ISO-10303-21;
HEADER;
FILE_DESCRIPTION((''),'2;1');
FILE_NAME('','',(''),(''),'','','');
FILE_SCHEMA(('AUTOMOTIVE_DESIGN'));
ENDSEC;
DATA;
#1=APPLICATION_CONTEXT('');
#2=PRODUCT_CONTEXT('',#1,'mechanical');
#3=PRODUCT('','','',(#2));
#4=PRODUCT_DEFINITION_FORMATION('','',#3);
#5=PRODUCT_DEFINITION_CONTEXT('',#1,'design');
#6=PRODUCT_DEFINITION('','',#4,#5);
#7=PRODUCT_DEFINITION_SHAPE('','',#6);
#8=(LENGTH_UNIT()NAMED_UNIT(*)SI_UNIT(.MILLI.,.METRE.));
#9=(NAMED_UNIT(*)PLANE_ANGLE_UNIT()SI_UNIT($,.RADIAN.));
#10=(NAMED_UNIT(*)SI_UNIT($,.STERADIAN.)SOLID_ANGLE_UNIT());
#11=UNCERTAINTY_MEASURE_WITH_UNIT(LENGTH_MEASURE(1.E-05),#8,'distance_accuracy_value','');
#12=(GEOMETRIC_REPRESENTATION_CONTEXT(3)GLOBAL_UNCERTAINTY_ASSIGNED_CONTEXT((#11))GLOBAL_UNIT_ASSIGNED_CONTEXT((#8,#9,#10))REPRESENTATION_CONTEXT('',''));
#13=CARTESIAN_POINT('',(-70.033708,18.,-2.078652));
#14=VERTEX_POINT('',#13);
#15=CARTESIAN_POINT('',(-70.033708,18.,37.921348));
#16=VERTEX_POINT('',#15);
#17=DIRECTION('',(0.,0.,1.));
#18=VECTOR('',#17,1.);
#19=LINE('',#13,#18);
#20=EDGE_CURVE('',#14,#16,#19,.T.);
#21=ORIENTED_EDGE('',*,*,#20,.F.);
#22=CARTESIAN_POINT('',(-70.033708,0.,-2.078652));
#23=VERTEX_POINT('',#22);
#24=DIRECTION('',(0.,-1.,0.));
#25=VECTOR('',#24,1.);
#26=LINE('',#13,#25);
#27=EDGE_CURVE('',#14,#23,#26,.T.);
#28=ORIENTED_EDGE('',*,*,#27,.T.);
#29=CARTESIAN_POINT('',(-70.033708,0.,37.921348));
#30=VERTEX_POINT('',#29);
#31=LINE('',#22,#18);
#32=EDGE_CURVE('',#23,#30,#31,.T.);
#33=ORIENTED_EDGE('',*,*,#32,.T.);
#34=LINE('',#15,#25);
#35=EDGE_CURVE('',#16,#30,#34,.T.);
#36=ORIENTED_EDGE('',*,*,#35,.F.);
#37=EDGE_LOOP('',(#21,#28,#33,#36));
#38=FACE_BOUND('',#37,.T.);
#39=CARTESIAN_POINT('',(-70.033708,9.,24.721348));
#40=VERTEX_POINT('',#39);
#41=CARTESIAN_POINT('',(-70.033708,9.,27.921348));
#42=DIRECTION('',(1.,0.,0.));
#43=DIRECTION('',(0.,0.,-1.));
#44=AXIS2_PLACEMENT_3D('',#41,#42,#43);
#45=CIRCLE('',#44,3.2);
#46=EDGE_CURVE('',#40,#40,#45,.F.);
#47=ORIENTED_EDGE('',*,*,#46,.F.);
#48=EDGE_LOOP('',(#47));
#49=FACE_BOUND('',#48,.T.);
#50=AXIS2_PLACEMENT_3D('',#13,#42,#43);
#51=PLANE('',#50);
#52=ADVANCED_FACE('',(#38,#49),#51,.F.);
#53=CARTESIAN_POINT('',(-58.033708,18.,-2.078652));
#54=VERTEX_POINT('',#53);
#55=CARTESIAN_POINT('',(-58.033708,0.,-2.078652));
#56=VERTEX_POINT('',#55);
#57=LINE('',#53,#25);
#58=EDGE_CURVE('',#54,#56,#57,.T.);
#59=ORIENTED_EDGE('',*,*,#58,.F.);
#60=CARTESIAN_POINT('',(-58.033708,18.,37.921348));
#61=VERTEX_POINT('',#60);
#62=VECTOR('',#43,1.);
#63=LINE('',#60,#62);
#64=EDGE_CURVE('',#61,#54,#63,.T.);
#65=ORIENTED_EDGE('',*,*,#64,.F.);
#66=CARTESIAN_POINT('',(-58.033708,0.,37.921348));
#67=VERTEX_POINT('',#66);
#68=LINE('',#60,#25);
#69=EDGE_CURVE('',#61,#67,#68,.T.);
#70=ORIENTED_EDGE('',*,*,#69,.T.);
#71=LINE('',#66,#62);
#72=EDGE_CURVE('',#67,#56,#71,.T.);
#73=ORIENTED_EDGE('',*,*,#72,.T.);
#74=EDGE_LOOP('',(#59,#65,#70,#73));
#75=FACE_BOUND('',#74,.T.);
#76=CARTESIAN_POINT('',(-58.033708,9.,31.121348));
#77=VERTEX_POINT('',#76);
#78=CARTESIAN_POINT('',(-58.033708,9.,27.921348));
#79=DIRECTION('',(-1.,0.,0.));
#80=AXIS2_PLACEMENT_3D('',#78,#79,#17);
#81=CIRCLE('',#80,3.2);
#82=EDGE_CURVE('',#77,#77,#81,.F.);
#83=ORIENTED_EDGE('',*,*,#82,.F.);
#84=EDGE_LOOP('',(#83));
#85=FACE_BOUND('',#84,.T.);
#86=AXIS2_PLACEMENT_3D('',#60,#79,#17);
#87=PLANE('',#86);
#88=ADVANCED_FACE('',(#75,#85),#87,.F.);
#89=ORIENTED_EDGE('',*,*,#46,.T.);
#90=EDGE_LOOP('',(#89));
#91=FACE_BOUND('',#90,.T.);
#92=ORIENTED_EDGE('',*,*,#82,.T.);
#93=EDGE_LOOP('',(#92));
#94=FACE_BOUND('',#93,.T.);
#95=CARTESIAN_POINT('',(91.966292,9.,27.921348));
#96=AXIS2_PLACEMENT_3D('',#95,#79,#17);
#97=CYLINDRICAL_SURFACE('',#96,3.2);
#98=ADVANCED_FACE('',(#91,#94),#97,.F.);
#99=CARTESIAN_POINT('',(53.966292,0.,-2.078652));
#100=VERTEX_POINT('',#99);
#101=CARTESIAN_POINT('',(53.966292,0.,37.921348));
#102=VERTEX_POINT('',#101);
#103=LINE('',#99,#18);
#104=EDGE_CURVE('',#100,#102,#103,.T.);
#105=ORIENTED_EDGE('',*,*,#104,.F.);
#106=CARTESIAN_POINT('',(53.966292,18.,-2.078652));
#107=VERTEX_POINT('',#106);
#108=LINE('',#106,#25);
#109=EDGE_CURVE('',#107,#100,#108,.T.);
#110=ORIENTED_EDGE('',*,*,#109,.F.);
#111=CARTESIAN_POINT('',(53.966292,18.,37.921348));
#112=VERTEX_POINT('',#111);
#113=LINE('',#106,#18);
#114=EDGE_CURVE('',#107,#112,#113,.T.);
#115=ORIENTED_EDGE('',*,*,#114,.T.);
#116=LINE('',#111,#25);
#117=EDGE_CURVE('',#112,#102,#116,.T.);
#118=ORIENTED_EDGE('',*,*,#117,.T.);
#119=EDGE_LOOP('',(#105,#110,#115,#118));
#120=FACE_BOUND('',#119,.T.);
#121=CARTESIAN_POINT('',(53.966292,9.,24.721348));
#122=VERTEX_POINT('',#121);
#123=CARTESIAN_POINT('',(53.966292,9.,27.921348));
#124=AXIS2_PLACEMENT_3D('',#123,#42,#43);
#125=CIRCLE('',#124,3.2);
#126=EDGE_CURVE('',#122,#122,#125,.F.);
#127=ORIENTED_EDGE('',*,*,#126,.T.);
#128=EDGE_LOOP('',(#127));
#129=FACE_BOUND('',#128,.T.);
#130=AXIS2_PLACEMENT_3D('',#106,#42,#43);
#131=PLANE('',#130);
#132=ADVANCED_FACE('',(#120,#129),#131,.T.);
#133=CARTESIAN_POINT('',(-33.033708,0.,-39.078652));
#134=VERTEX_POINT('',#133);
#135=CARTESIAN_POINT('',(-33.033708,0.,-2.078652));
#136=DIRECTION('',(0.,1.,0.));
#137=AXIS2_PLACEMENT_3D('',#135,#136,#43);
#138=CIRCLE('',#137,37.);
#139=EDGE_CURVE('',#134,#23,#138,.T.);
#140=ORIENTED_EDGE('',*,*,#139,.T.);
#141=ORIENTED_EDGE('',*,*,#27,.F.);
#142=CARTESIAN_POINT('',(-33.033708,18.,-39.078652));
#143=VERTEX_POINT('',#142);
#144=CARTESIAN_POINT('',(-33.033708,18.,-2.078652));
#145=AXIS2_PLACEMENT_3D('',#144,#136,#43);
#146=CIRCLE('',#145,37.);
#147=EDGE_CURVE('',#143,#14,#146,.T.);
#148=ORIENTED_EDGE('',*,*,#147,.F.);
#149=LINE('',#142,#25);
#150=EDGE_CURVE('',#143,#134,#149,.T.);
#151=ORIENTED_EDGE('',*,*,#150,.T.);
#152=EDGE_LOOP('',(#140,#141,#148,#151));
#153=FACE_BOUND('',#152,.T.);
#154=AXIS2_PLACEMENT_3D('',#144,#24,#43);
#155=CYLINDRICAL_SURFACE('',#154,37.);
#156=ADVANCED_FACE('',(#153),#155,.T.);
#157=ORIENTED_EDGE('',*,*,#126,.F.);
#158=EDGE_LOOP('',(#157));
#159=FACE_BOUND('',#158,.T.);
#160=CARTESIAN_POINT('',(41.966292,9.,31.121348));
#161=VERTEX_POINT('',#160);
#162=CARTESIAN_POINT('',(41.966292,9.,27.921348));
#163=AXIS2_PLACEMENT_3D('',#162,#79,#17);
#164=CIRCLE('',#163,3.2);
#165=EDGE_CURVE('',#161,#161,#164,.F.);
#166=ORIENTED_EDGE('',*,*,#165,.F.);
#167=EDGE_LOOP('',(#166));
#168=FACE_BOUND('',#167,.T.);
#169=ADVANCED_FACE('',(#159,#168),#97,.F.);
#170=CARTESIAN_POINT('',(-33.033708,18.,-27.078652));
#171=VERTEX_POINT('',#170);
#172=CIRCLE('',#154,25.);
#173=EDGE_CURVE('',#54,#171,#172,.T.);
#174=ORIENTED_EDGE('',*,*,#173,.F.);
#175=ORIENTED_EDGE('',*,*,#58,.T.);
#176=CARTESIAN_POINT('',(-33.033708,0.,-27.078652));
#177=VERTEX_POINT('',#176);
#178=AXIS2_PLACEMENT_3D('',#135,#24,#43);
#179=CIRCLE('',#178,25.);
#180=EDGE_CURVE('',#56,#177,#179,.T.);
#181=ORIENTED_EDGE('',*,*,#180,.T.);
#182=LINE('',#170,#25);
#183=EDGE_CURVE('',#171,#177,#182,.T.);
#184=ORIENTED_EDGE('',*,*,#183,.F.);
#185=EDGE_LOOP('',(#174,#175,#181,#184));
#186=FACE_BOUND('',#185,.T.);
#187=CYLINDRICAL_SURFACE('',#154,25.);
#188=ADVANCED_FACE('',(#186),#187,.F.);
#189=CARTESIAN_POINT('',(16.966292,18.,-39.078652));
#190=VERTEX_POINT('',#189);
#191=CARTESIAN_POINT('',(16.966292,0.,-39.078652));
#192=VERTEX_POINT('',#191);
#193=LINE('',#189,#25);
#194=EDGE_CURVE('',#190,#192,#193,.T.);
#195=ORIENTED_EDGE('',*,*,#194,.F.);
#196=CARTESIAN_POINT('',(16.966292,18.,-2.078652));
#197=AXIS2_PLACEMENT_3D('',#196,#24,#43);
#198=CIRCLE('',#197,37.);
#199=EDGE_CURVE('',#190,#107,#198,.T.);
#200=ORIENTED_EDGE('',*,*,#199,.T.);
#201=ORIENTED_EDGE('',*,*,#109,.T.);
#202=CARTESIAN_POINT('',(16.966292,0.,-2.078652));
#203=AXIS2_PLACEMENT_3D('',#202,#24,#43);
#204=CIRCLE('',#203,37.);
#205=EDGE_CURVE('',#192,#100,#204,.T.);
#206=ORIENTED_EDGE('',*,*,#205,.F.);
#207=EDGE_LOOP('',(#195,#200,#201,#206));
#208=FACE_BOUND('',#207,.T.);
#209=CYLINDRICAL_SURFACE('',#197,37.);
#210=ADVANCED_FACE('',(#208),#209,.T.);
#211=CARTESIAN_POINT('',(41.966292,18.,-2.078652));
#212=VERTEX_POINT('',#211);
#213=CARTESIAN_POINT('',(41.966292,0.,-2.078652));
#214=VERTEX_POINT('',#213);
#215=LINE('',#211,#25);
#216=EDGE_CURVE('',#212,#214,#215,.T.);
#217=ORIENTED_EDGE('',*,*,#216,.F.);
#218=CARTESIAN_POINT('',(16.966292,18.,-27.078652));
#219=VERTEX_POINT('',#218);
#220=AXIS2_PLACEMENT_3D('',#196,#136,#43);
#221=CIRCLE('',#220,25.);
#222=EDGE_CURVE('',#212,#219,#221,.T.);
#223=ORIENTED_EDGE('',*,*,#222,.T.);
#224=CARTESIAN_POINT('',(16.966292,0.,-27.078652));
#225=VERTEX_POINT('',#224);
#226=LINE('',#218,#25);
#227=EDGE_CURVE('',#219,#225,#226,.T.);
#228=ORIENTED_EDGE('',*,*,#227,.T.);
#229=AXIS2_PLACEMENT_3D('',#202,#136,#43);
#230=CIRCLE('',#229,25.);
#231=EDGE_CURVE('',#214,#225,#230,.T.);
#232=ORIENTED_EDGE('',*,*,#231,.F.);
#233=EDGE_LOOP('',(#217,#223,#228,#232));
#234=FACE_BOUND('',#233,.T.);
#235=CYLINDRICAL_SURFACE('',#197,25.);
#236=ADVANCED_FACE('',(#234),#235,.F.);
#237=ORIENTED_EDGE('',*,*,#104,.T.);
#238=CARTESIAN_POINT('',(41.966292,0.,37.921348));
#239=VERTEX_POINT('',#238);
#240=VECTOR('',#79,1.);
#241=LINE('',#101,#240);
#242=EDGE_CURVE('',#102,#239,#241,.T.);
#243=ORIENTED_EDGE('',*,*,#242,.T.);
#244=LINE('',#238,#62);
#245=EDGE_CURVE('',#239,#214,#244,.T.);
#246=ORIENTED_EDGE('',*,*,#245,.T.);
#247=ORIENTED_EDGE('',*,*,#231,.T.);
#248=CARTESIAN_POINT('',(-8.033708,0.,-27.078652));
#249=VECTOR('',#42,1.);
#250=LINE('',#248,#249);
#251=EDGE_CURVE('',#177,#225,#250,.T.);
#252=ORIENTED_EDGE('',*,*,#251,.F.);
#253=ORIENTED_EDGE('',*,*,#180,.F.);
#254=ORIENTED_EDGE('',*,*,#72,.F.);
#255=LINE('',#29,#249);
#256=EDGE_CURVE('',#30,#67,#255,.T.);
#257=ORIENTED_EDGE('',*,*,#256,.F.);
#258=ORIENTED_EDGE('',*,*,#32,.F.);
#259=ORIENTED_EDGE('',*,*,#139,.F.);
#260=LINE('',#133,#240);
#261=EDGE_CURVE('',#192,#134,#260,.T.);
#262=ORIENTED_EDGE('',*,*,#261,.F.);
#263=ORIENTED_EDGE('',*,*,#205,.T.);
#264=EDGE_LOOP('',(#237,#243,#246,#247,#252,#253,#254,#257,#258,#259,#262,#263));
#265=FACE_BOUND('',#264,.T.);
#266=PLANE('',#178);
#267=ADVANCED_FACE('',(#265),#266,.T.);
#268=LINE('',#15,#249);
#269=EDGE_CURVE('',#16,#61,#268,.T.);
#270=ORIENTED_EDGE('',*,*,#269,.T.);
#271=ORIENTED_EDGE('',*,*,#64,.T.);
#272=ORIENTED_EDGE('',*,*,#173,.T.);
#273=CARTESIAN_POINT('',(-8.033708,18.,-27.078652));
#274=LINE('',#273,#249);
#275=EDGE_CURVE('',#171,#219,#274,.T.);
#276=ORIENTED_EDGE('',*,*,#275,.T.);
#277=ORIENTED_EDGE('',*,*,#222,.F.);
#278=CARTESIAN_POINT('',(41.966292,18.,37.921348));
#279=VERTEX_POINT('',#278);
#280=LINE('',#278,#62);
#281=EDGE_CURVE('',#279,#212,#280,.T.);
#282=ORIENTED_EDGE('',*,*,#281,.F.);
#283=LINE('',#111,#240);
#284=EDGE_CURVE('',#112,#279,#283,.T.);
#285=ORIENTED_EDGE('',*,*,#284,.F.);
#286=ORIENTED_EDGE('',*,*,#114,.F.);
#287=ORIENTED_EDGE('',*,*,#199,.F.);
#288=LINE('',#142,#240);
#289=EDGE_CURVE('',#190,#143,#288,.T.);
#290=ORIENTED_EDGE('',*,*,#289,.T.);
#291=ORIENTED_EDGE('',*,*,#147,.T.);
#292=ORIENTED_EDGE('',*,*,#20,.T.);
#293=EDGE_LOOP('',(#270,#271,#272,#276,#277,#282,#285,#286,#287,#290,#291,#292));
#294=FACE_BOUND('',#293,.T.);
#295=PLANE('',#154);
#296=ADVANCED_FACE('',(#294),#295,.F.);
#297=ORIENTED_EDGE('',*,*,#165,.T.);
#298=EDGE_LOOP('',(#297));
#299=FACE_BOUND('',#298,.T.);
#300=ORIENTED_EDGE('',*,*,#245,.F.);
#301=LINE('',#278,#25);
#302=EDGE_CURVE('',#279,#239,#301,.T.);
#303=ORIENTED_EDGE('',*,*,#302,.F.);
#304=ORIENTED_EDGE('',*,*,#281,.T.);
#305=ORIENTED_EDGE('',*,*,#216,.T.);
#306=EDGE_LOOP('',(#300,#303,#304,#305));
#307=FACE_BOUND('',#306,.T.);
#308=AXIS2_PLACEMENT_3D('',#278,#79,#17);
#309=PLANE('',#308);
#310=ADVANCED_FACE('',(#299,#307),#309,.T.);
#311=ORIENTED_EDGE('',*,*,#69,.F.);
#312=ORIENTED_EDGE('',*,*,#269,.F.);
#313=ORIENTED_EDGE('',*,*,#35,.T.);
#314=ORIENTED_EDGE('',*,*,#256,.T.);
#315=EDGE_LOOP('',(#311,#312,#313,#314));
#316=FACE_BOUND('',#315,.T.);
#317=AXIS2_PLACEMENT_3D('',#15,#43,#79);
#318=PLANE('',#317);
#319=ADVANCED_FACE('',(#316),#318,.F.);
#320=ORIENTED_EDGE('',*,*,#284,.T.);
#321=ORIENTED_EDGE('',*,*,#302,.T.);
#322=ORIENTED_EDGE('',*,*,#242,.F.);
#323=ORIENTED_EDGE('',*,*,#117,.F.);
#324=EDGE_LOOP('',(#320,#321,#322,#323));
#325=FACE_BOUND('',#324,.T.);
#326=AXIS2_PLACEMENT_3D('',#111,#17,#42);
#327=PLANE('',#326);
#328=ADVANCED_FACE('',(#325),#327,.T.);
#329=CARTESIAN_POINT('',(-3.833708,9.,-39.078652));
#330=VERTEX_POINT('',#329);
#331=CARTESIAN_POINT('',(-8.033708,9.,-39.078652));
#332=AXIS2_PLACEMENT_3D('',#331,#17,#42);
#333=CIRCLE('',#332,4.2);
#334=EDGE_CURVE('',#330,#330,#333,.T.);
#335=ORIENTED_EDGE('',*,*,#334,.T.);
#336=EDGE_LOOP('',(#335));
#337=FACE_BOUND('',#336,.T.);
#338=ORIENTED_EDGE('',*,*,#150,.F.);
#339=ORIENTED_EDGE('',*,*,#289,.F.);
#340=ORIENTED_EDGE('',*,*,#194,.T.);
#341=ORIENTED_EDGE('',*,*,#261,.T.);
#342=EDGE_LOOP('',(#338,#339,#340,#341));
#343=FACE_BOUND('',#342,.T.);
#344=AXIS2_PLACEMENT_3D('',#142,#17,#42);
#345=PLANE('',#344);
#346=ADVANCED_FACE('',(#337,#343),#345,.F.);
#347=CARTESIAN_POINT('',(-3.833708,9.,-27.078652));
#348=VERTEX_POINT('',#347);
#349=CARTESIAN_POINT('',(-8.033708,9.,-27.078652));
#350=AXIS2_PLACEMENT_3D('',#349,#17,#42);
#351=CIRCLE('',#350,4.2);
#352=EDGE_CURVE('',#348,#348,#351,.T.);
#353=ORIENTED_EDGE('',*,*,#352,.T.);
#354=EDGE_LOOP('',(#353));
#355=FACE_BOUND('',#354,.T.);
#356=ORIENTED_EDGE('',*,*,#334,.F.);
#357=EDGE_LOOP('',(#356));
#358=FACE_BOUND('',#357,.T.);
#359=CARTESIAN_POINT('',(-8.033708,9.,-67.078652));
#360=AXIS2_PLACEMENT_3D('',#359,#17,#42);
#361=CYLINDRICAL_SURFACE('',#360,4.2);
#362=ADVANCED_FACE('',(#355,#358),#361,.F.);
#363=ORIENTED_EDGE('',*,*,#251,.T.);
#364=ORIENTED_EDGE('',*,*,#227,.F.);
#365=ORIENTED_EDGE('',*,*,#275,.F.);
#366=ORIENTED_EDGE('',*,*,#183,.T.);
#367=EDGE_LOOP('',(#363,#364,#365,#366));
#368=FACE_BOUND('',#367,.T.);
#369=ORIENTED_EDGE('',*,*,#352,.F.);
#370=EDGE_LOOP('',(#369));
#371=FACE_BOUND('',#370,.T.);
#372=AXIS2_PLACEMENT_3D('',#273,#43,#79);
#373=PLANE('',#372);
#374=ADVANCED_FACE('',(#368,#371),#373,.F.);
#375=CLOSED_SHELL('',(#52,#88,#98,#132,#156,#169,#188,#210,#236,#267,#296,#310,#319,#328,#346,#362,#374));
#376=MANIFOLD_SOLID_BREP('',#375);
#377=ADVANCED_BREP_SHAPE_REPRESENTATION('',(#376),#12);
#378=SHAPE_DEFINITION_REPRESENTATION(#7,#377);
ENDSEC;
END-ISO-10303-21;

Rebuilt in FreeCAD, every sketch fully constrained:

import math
import FreeCAD as App
import Part
import Sketcher
from FreeCAD import Vector

doc = App.newDocument("Part")
params = doc.addObject("Spreadsheet::Sheet", "Params")
for row, (alias, value) in enumerate([
    ("sketch1_radius", "25 mm"),
    ("sketch1_radius2", "37 mm"),
    ("sketch1_width", "25 mm"),
    ("sketch1_height", "40 mm"),
    ("pad1_length", "18 mm"),
    ("sketch2_diameter", "6.4 mm"),
    ("sketch3_diameter", "8.4 mm"),
    ("pocket2_length", "40 mm"),
], start=1):
    params.set(f"A{row}", alias)
    params.set(f"B{row}", "=" + value)
    params.setAlias(f"B{row}", alias)

body = doc.addObject("PartDesign::Body", "Body")

sketch1 = body.newObject("Sketcher::SketchObject", "Sketch")
sketch1.AttachmentSupport = (doc.getObject("XZ_Plane"), [""])
sketch1.MapMode = "FlatFace"
sketch1.addGeometry([
    Part.LineSegment(Vector(-70, 38, 0), Vector(-58, 38, 0)),
    Part.LineSegment(Vector(-58, 38, 0), Vector(-58, -2, 0)),
    Part.ArcOfCircle(Part.Circle(Vector(-33, -2, 0), Vector(0, 0, 1), 25), math.radians(180), math.radians(270)),
    Part.LineSegment(Vector(-33, -27, 0), Vector(-8, -27, 0)),
    Part.LineSegment(Vector(-8, -27, 0), Vector(-8, -39, 0)),
    Part.LineSegment(Vector(-8, -39, 0), Vector(-33, -39, 0)),
    Part.ArcOfCircle(Part.Circle(Vector(-33, -2, 0), Vector(0, 0, 1), 37), math.radians(180), math.radians(270)),
    Part.LineSegment(Vector(-70, -2, 0), Vector(-70, 38, 0)),
], False)
sketch1.addConstraint([
    Sketcher.Constraint("Coincident", 0, 2, 1, 1),
    Sketcher.Constraint("Tangent", 1, 2, 2, 1),
    Sketcher.Constraint("Tangent", 2, 2, 3, 1),
    Sketcher.Constraint("Coincident", 3, 2, 4, 1),
    Sketcher.Constraint("Coincident", 4, 2, 5, 1),
    Sketcher.Constraint("Tangent", 5, 2, 6, 2),
    Sketcher.Constraint("Tangent", 6, 1, 7, 1),
    Sketcher.Constraint("Coincident", 7, 2, 0, 1),
    Sketcher.Constraint("Horizontal", 0),
    Sketcher.Constraint("Vertical", 1),
    Sketcher.Constraint("Horizontal", 3),
    Sketcher.Constraint("Vertical", 4),
    Sketcher.Constraint("Horizontal", 5),
    Sketcher.Constraint("Vertical", 7),
    Sketcher.Constraint("Coincident", 6, 3, 2, 3),
    Sketcher.Constraint("Radius", 2, 25.0),
    Sketcher.Constraint("Radius", 6, 37.0),
    Sketcher.Constraint("DistanceX", 3, 1, 3, 2, 25.0),
    Sketcher.Constraint("DistanceY", 1, 2, 1, 1, 40.0),
    Sketcher.Constraint("DistanceY", 2, 3, -1, 1, 2.078652),
    Sketcher.Constraint("DistanceX", 2, 3, -1, 1, 33.033708),
])
sketch1.setExpression("Constraints[15]", "Params.sketch1_radius")
sketch1.setExpression("Constraints[16]", "Params.sketch1_radius2")
sketch1.setExpression("Constraints[17]", "Params.sketch1_width")
sketch1.setExpression("Constraints[18]", "Params.sketch1_height")
pad1 = body.newObject("PartDesign::Pad", "Pad")
pad1.Profile = sketch1
pad1.setExpression("Length", "Params.pad1_length")
pad1.Reversed = True
doc.recompute()

datumplane = body.newObject("PartDesign::Plane", "DatumPlane")
datumplane.AttachmentSupport = (doc.getObject("YZ_Plane"), [""])
datumplane.MapMode = "FlatFace"
datumplane.AttachmentOffset = App.Placement(Vector(0, 0, -8.033708), App.Rotation())
mirrored = body.newObject("PartDesign::Mirrored", "Mirrored")
mirrored.Originals = [pad1]
mirrored.MirrorPlane = (datumplane, [""])
body.Tip = mirrored

sketch2 = body.newObject("Sketcher::SketchObject", "Sketch001")
sketch2.AttachmentSupport = (doc.getObject("YZ_Plane"), [""])
sketch2.MapMode = "FlatFace"
sketch2.AttachmentOffset = App.Placement(Vector(0, 0, -58.033708), App.Rotation())
sketch2.addGeometry(Part.Circle(Vector(9, 27.9, 0), Vector(0, 0, 1), 3.2), False)
sketch2.addConstraint([
    Sketcher.Constraint("Diameter", 0, 6.4),
    Sketcher.Constraint("DistanceX", -1, 1, 0, 3, 9.0),
    Sketcher.Constraint("DistanceY", -1, 1, 0, 3, 27.921348),
])
sketch2.setExpression("Constraints[0]", "Params.sketch2_diameter")
pocket1 = body.newObject("PartDesign::Pocket", "Pocket")
pocket1.Profile = sketch2
pocket1.Type = "ThroughAll"
pocket1.Midplane = True

sketch3 = body.newObject("Sketcher::SketchObject", "Sketch002")
sketch3.AttachmentSupport = (doc.getObject("XY_Plane"), [""])
sketch3.MapMode = "FlatFace"
sketch3.AttachmentOffset = App.Placement(Vector(0, 0, -27.078652), App.Rotation())
sketch3.addGeometry(Part.Circle(Vector(-8, 9, 0), Vector(0, 0, 1), 4.2), False)
sketch3.addConstraint([
    Sketcher.Constraint("Diameter", 0, 8.4),
    Sketcher.Constraint("DistanceY", -1, 1, 0, 3, 9.0),
    Sketcher.Constraint("DistanceX", 0, 3, -1, 1, 8.033708),
])
sketch3.setExpression("Constraints[0]", "Params.sketch3_diameter")
pocket2 = body.newObject("PartDesign::Pocket", "Pocket001")
pocket2.Profile = sketch3
pocket2.setExpression("Length", "Params.pocket2_length")

doc.recompute()
